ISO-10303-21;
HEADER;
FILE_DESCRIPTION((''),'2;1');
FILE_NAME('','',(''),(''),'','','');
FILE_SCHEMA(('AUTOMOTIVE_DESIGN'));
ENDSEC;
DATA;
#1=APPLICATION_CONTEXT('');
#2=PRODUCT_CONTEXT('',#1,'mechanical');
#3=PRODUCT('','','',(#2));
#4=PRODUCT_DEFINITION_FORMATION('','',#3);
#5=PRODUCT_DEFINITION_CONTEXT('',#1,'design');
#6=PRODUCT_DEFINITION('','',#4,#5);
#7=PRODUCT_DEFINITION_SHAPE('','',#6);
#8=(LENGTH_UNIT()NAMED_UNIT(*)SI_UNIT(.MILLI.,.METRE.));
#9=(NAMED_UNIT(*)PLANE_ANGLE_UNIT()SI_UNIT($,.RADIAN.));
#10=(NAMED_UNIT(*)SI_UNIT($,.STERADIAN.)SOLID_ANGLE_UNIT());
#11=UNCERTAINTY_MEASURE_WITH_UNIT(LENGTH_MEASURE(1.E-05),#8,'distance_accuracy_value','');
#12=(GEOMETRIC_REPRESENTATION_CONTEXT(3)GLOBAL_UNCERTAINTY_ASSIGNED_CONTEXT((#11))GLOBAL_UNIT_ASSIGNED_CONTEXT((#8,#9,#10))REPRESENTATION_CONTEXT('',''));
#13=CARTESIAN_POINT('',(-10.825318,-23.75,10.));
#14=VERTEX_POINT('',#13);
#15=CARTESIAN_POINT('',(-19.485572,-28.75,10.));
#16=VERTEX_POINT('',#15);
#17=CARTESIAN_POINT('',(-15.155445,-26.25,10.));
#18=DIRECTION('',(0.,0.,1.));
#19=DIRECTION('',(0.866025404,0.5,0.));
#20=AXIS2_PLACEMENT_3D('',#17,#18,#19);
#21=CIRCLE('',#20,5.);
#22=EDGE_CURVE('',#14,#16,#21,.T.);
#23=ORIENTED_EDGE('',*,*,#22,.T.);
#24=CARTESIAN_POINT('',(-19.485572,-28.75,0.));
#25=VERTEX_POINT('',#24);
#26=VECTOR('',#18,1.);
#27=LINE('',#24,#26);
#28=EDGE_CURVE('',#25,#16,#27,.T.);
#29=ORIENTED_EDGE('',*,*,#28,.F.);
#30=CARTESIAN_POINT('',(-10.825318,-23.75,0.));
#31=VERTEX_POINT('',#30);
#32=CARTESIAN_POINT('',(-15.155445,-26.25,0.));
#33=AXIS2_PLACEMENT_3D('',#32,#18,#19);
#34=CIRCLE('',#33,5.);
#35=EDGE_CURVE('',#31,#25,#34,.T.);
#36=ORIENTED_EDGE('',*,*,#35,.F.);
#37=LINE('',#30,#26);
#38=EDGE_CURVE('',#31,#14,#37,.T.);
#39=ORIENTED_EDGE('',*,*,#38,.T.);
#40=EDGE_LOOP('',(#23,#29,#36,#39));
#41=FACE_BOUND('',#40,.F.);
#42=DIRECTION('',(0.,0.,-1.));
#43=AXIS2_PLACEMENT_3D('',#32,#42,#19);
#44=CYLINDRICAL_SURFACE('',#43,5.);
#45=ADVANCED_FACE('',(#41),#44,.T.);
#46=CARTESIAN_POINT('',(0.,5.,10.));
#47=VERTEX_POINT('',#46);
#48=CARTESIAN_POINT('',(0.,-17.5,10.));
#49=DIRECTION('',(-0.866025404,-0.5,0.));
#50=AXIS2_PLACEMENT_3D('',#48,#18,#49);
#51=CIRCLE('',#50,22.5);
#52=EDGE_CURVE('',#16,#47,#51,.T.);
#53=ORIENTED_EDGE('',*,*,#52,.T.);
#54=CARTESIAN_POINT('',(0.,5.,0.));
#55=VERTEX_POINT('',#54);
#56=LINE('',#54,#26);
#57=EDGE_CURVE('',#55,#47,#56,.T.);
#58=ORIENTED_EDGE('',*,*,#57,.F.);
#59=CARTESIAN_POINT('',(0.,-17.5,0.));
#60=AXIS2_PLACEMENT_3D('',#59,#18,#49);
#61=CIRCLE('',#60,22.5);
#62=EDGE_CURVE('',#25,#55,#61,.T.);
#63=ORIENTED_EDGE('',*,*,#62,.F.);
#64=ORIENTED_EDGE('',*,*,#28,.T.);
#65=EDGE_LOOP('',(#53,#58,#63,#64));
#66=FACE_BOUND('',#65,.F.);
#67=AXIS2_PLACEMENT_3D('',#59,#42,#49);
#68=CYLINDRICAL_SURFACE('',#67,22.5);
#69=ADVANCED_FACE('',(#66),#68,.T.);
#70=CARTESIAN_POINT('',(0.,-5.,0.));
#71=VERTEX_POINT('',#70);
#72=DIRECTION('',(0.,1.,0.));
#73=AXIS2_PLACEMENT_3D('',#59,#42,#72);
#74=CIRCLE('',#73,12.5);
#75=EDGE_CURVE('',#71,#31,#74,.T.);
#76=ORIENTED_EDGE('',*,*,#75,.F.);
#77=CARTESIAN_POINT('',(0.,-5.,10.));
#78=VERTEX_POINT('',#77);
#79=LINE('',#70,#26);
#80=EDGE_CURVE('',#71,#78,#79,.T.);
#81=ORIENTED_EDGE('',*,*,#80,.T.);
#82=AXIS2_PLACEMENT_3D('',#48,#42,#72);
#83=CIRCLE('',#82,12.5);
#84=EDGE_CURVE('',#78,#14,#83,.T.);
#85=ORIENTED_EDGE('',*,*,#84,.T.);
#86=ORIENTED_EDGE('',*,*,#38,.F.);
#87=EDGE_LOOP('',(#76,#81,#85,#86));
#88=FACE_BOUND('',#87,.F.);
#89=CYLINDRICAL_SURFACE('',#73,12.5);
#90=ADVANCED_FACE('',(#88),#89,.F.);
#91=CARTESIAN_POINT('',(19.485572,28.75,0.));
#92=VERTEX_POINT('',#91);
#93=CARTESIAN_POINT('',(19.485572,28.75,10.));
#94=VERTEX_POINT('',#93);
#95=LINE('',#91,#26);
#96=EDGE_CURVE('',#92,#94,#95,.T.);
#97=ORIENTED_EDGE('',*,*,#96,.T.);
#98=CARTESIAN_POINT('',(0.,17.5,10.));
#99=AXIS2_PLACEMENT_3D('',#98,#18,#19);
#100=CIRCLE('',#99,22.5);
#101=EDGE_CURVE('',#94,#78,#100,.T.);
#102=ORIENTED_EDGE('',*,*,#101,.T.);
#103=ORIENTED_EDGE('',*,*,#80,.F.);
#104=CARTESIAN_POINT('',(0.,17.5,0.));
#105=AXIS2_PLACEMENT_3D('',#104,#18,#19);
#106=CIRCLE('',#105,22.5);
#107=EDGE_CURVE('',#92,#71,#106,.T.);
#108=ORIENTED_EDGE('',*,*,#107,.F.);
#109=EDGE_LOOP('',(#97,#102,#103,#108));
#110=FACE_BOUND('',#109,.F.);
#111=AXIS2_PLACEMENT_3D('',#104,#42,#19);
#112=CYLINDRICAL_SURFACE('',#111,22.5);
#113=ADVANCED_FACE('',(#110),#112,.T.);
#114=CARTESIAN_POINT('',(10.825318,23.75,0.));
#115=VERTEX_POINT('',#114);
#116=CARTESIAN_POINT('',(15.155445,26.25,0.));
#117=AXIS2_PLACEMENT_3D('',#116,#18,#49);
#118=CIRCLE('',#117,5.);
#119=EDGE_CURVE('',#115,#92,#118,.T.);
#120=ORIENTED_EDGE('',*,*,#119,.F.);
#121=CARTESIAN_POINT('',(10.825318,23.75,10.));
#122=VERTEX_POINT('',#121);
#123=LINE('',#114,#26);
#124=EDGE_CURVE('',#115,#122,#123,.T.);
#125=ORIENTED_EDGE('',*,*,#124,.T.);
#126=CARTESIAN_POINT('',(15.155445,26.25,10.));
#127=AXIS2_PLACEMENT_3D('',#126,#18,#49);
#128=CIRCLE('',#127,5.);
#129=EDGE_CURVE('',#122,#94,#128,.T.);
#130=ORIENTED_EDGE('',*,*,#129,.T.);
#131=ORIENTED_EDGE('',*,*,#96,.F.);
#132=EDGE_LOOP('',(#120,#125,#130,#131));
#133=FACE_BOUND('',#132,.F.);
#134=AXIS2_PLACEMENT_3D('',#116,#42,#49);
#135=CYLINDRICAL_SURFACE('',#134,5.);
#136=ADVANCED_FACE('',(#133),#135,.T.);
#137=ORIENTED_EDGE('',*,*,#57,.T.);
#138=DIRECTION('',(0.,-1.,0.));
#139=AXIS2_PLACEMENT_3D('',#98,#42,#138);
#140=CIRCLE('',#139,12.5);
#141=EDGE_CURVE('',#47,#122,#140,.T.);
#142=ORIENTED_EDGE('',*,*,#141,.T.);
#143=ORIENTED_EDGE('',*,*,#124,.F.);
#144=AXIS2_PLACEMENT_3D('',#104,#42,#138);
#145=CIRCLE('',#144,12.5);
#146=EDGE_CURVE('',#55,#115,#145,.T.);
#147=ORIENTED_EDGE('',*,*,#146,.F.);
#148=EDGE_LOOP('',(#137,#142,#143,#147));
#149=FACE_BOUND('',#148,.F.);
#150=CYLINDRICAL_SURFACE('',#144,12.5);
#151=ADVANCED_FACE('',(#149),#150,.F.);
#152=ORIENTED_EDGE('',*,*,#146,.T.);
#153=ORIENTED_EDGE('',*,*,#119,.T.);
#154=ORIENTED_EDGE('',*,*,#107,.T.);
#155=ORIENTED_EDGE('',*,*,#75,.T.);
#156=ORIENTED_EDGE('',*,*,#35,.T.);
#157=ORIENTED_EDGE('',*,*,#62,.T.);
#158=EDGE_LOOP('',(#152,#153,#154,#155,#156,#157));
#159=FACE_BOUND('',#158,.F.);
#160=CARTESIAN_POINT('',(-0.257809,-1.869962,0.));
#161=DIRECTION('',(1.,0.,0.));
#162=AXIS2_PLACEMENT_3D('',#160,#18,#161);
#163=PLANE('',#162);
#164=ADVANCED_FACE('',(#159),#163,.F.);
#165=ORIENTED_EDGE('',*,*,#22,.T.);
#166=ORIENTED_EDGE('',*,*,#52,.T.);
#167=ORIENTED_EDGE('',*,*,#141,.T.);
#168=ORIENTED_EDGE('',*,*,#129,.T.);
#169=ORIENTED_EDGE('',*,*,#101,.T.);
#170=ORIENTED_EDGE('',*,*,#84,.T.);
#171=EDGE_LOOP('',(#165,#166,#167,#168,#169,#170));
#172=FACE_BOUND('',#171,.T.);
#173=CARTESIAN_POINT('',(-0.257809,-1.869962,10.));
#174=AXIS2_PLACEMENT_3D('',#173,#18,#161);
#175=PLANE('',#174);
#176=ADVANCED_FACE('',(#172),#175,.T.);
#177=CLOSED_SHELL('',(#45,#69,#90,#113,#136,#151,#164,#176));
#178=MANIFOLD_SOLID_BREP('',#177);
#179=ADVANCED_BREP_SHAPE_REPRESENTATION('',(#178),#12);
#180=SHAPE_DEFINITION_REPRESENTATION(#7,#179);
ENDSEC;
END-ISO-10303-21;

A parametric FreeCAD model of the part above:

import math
import FreeCAD as App
import Part
import Sketcher
from FreeCAD import Vector
Q = App.Units.Quantity

doc = App.newDocument("Part")
body = doc.addObject("PartDesign::Body", "Body")

# Sketch on XY plane
sketch1 = body.newObject("Sketcher::SketchObject", "Sketch")
sketch1.AttachmentSupport = (doc.getObject("XY_Plane"), [""])
sketch1.MapMode = "FlatFace"
sketch1.addGeometry(Part.ArcOfCircle(Part.Circle(Vector(0, 18, 0), Vector(0, 0, 1), 12), math.radians(30), math.radians(270)), False)
sketch1.addGeometry(Part.ArcOfCircle(Part.Circle(Vector(15, 26, 0), Vector(0, 0, 1), 5), math.radians(-150), math.radians(30)), False)
sketch1.addGeometry(Part.ArcOfCircle(Part.Circle(Vector(0, 18, 0), Vector(0, 0, 1), 22), math.radians(30), math.radians(270)), False)
sketch1.addGeometry(Part.ArcOfCircle(Part.Circle(Vector(0, -18, 0), Vector(0, 0, 1), 12), math.radians(-150), math.radians(90)), False)
sketch1.addGeometry(Part.ArcOfCircle(Part.Circle(Vector(-15, -26, 0), Vector(0, 0, 1), 5), math.radians(30), math.radians(210)), False)
sketch1.addGeometry(Part.ArcOfCircle(Part.Circle(Vector(0, -18, 0), Vector(0, 0, 1), 22), math.radians(-150), math.radians(90)), False)
sketch1.addConstraint(Sketcher.Constraint("Tangent", 0, 1, 1, 1))
sketch1.addConstraint(Sketcher.Constraint("Tangent", 1, 2, 2, 1))
sketch1.addConstraint(Sketcher.Constraint("Tangent", 2, 2, 3, 2))
sketch1.addConstraint(Sketcher.Constraint("Tangent", 3, 1, 4, 1))
sketch1.addConstraint(Sketcher.Constraint("Tangent", 4, 2, 5, 1))
sketch1.addConstraint(Sketcher.Constraint("Tangent", 5, 2, 0, 2))
sketch1.addConstraint(Sketcher.Constraint("Coincident", 2, 3, 0, 3))
sketch1.addConstraint(Sketcher.Constraint("Coincident", 5, 3, 3, 3))
sketch1.addConstraint(Sketcher.Constraint("Equal", 0, 3))
sketch1.addConstraint(Sketcher.Constraint("Symmetric", 0, 3, 3, 3, -1, 1))
sketch1.addConstraint(Sketcher.Constraint("PointOnObject", 0, 3, -2))
sketch1.addConstraint(Sketcher.Constraint("Radius", 1, Q("5 mm")))
sketch1.addConstraint(Sketcher.Constraint("Radius", 0, Q("12.5 mm")))
sketch1.addConstraint(Sketcher.Constraint("DistanceY", 0, 1, 1, 2, Q("5 mm")))
sketch1.addConstraint(Sketcher.Constraint("DistanceY", 4, 2, 3, 1, Q("5 mm")))
pad1 = body.newObject("PartDesign::Pad", "Pad")
pad1.Profile = sketch1
pad1.Length = 10

doc.recompute()
